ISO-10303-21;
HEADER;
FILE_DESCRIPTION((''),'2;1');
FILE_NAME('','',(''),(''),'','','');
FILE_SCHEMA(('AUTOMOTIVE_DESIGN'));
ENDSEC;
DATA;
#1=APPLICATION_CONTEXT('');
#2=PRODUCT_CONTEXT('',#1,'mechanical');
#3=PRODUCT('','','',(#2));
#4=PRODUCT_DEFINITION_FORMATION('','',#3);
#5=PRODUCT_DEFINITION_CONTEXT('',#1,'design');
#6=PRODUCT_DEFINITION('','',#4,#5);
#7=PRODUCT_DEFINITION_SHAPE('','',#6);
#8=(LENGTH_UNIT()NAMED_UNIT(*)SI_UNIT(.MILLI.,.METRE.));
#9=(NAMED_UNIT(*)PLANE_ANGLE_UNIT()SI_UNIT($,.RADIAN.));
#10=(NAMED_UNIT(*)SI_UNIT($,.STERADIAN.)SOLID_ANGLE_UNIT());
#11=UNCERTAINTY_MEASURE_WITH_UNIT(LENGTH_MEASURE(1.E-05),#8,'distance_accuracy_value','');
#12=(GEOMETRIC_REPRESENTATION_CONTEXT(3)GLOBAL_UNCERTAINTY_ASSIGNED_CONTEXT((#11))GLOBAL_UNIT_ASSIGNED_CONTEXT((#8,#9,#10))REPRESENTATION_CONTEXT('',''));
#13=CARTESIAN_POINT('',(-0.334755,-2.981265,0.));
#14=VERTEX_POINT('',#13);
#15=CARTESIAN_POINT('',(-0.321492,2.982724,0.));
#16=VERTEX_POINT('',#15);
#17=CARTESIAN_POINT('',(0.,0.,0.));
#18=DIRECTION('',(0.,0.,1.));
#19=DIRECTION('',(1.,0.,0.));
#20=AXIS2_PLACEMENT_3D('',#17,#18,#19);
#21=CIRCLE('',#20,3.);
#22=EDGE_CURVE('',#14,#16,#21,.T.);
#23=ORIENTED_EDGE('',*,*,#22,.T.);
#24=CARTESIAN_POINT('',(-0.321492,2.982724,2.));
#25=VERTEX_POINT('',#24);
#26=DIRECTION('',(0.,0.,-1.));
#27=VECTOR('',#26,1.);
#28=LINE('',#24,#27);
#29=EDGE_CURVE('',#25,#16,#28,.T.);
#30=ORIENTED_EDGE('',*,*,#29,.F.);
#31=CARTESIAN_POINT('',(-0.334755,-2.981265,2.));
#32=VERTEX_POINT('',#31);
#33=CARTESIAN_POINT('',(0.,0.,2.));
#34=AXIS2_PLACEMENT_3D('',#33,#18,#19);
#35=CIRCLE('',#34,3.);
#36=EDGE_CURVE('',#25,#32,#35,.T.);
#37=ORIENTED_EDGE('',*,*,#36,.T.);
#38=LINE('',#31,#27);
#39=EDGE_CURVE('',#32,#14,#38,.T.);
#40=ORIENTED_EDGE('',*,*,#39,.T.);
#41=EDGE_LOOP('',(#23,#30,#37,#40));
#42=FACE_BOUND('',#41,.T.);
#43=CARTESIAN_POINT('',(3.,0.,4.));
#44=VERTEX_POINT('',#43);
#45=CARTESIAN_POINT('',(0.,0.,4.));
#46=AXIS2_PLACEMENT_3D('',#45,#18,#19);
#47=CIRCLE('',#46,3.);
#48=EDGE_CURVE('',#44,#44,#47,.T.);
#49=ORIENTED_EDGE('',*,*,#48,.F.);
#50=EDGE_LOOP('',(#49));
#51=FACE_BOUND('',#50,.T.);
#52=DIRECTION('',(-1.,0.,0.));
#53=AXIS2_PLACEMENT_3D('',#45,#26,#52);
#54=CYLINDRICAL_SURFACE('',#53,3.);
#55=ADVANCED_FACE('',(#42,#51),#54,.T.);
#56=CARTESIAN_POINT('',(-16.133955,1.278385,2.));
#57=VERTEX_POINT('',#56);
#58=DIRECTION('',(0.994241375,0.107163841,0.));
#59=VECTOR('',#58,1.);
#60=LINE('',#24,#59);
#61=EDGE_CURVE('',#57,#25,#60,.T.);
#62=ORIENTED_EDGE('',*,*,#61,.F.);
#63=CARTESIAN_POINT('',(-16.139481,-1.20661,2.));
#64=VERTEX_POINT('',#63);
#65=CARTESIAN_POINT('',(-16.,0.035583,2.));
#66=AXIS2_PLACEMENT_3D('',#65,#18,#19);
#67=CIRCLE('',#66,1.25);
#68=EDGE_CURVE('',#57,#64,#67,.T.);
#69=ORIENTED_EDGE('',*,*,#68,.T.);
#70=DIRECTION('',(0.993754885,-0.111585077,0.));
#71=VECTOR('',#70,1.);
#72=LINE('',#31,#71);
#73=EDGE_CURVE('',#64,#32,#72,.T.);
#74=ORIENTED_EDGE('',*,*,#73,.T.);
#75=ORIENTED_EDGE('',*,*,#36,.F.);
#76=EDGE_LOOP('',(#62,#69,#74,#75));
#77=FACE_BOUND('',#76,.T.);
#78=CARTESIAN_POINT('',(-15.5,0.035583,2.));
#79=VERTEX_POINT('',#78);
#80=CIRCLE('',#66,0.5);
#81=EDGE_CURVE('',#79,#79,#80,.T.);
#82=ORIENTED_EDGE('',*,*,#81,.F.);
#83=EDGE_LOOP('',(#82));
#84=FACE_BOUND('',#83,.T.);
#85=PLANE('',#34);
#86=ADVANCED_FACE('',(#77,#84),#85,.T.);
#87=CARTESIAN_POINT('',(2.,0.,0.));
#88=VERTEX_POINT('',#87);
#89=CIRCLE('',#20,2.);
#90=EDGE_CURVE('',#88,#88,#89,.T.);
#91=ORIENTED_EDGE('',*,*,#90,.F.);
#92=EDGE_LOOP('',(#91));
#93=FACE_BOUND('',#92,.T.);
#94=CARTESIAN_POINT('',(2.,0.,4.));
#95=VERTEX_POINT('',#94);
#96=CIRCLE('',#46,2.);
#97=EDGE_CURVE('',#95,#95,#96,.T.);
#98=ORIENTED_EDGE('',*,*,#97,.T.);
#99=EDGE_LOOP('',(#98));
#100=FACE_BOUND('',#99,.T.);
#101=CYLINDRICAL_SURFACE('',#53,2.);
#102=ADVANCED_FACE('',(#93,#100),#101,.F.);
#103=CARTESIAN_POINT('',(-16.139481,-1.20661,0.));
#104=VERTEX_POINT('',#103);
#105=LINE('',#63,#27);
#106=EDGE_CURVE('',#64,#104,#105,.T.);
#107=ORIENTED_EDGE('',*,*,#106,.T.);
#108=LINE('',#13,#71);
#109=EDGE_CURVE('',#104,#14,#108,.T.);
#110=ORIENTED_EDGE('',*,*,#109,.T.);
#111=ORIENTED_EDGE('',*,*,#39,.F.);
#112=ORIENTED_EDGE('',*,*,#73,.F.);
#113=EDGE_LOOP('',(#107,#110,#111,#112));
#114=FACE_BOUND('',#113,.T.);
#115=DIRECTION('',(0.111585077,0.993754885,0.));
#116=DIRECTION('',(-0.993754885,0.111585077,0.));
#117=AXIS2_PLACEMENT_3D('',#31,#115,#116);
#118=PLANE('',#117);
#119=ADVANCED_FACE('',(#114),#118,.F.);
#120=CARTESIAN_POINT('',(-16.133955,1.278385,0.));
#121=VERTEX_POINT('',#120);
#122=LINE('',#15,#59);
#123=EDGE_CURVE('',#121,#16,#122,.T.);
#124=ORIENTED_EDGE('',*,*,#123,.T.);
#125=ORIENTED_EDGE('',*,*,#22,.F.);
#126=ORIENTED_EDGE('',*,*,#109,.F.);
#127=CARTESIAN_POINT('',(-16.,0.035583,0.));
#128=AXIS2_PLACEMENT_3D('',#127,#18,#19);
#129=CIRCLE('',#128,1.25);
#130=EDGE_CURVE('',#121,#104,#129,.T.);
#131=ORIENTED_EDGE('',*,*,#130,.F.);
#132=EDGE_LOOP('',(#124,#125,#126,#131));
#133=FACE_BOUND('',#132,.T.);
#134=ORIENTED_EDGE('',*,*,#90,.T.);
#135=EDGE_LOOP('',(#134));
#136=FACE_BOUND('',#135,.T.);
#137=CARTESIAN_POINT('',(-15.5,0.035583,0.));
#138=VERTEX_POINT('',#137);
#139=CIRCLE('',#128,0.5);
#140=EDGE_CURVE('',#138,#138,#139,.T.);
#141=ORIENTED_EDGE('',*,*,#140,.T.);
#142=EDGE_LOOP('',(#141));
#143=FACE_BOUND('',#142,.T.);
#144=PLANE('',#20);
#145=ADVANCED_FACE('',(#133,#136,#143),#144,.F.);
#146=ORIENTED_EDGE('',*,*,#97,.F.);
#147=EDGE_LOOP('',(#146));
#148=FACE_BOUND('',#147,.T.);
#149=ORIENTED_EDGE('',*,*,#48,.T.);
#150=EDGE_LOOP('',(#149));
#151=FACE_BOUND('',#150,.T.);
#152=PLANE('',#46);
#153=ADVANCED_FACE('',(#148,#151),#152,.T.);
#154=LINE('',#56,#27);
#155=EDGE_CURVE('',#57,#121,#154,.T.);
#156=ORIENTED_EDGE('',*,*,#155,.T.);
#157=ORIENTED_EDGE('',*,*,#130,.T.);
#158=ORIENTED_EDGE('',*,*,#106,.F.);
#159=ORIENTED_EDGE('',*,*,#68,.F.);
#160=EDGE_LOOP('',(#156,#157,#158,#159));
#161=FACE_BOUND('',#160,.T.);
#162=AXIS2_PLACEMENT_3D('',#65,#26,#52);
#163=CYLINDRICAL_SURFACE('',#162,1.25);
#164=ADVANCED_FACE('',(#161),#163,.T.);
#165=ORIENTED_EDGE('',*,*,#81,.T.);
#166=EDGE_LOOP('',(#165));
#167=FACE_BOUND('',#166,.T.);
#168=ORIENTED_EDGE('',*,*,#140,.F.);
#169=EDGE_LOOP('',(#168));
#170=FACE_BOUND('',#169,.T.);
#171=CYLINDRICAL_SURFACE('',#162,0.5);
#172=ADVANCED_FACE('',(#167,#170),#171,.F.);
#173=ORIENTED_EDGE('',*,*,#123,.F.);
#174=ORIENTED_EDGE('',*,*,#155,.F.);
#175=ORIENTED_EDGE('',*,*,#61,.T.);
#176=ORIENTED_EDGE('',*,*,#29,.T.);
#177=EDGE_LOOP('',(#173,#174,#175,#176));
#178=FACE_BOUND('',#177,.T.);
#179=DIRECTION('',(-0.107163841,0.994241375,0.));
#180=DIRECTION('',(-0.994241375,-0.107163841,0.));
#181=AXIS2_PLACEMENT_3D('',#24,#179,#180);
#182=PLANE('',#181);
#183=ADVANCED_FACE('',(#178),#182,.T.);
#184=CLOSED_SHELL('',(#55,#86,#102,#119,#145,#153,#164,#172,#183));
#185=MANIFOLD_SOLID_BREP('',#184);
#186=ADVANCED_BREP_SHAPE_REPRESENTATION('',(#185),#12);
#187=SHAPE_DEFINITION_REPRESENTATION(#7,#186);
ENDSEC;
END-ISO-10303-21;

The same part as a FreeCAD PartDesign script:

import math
import FreeCAD as App
import Part
import Sketcher
from FreeCAD import Vector

doc = App.newDocument("Part")
body = doc.addObject("PartDesign::Body", "Body")

# Sketch on XY plane
sketch1 = body.newObject("Sketcher::SketchObject", "Sketch")
sketch1.AttachmentSupport = (doc.getObject("XY_Plane"), [""])
sketch1.MapMode = "FlatFace"
sketch1.addGeometry(Part.Circle(Vector(0, 0, 0), Vector(0, 0, 1), 3), False)
sketch1.addGeometry(Part.Circle(Vector(0, 0, 0), Vector(0, 0, 1), 2), False)
sketch1.addConstraint(Sketcher.Constraint("Coincident", 0, 3, -1, 1))
sketch1.addConstraint(Sketcher.Constraint("Coincident", 1, 3, -1, 1))
sketch1.addConstraint(Sketcher.Constraint("Diameter", 0, 6.0))
sketch1.addConstraint(Sketcher.Constraint("Diameter", 1, 4.0))
pad1 = body.newObject("PartDesign::Pad", "Pad")
pad1.Profile = sketch1
pad1.Length = 4

# Sketch on XY plane
sketch2 = body.newObject("Sketcher::SketchObject", "Sketch001")
sketch2.AttachmentSupport = (doc.getObject("XY_Plane"), [""])
sketch2.MapMode = "FlatFace"
sketch2.addGeometry(Part.ArcOfCircle(Part.Circle(Vector(-16, 0.035583, 0), Vector(0, 0, 1), 1.25), math.radians(96.151849), math.radians(263.593304)), False)
sketch2.addGeometry(Part.LineSegment(Vector(-16.139481, -1.20661, 0), Vector(-0.334755, -2.981265, 0)), False)
sketch2.addGeometry(Part.ArcOfCircle(Part.Circle(Vector(0, 0, 0), Vector(0, 0, 1), 3), math.radians(96.151849), math.radians(263.593304)), False)
sketch2.addGeometry(Part.LineSegment(Vector(-0.321492, 2.982724, 0), Vector(-16.133955, 1.278385, 0)), False)
sketch2.addGeometry(Part.Circle(Vector(-16, 0.035583, 0), Vector(0, 0, 1), 0.5), False)
sketch2.addConstraint(Sketcher.Constraint("Coincident", 0, 2, 1, 1))
sketch2.addConstraint(Sketcher.Constraint("Coincident", 1, 2, 2, 2))
sketch2.addConstraint(Sketcher.Constraint("Coincident", 2, 1, 3, 1))
sketch2.addConstraint(Sketcher.Constraint("Coincident", 3, 2, 0, 1))
sketch2.addConstraint(Sketcher.Constraint("Coincident", 2, 3, -1, 1))
sketch2.addConstraint(Sketcher.Constraint("Coincident", 4, 3, 0, 3))
sketch2.addConstraint(Sketcher.Constraint("Diameter", 4, 1.0))
sketch2.addConstraint(Sketcher.Constraint("Radius", 2, 3.0))
sketch2.addConstraint(Sketcher.Constraint("Radius", 0, 1.25))
sketch2.addConstraint(Sketcher.Constraint("DistanceX", 0, 3, -1, 1, 16.0))
sketch2.addConstraint(Sketcher.Constraint("DistanceY", 0, 3, 3, 2, 1.242802))
sketch2.addConstraint(Sketcher.Constraint("Distance", 1, 15.904049))
sketch2.addConstraint(Sketcher.Constraint("Distance", 3, 15.904049))
sketch2.addConstraint(Sketcher.Constraint("DistanceX", 0, 2, -1, 1, 16.139481))
sketch2.addConstraint(Sketcher.Constraint("DistanceY", 0, 2, -1, 1, 1.20661))
pad2 = body.newObject("PartDesign::Pad", "Pad001")
pad2.Profile = sketch2
pad2.Length = 2

doc.recompute()
